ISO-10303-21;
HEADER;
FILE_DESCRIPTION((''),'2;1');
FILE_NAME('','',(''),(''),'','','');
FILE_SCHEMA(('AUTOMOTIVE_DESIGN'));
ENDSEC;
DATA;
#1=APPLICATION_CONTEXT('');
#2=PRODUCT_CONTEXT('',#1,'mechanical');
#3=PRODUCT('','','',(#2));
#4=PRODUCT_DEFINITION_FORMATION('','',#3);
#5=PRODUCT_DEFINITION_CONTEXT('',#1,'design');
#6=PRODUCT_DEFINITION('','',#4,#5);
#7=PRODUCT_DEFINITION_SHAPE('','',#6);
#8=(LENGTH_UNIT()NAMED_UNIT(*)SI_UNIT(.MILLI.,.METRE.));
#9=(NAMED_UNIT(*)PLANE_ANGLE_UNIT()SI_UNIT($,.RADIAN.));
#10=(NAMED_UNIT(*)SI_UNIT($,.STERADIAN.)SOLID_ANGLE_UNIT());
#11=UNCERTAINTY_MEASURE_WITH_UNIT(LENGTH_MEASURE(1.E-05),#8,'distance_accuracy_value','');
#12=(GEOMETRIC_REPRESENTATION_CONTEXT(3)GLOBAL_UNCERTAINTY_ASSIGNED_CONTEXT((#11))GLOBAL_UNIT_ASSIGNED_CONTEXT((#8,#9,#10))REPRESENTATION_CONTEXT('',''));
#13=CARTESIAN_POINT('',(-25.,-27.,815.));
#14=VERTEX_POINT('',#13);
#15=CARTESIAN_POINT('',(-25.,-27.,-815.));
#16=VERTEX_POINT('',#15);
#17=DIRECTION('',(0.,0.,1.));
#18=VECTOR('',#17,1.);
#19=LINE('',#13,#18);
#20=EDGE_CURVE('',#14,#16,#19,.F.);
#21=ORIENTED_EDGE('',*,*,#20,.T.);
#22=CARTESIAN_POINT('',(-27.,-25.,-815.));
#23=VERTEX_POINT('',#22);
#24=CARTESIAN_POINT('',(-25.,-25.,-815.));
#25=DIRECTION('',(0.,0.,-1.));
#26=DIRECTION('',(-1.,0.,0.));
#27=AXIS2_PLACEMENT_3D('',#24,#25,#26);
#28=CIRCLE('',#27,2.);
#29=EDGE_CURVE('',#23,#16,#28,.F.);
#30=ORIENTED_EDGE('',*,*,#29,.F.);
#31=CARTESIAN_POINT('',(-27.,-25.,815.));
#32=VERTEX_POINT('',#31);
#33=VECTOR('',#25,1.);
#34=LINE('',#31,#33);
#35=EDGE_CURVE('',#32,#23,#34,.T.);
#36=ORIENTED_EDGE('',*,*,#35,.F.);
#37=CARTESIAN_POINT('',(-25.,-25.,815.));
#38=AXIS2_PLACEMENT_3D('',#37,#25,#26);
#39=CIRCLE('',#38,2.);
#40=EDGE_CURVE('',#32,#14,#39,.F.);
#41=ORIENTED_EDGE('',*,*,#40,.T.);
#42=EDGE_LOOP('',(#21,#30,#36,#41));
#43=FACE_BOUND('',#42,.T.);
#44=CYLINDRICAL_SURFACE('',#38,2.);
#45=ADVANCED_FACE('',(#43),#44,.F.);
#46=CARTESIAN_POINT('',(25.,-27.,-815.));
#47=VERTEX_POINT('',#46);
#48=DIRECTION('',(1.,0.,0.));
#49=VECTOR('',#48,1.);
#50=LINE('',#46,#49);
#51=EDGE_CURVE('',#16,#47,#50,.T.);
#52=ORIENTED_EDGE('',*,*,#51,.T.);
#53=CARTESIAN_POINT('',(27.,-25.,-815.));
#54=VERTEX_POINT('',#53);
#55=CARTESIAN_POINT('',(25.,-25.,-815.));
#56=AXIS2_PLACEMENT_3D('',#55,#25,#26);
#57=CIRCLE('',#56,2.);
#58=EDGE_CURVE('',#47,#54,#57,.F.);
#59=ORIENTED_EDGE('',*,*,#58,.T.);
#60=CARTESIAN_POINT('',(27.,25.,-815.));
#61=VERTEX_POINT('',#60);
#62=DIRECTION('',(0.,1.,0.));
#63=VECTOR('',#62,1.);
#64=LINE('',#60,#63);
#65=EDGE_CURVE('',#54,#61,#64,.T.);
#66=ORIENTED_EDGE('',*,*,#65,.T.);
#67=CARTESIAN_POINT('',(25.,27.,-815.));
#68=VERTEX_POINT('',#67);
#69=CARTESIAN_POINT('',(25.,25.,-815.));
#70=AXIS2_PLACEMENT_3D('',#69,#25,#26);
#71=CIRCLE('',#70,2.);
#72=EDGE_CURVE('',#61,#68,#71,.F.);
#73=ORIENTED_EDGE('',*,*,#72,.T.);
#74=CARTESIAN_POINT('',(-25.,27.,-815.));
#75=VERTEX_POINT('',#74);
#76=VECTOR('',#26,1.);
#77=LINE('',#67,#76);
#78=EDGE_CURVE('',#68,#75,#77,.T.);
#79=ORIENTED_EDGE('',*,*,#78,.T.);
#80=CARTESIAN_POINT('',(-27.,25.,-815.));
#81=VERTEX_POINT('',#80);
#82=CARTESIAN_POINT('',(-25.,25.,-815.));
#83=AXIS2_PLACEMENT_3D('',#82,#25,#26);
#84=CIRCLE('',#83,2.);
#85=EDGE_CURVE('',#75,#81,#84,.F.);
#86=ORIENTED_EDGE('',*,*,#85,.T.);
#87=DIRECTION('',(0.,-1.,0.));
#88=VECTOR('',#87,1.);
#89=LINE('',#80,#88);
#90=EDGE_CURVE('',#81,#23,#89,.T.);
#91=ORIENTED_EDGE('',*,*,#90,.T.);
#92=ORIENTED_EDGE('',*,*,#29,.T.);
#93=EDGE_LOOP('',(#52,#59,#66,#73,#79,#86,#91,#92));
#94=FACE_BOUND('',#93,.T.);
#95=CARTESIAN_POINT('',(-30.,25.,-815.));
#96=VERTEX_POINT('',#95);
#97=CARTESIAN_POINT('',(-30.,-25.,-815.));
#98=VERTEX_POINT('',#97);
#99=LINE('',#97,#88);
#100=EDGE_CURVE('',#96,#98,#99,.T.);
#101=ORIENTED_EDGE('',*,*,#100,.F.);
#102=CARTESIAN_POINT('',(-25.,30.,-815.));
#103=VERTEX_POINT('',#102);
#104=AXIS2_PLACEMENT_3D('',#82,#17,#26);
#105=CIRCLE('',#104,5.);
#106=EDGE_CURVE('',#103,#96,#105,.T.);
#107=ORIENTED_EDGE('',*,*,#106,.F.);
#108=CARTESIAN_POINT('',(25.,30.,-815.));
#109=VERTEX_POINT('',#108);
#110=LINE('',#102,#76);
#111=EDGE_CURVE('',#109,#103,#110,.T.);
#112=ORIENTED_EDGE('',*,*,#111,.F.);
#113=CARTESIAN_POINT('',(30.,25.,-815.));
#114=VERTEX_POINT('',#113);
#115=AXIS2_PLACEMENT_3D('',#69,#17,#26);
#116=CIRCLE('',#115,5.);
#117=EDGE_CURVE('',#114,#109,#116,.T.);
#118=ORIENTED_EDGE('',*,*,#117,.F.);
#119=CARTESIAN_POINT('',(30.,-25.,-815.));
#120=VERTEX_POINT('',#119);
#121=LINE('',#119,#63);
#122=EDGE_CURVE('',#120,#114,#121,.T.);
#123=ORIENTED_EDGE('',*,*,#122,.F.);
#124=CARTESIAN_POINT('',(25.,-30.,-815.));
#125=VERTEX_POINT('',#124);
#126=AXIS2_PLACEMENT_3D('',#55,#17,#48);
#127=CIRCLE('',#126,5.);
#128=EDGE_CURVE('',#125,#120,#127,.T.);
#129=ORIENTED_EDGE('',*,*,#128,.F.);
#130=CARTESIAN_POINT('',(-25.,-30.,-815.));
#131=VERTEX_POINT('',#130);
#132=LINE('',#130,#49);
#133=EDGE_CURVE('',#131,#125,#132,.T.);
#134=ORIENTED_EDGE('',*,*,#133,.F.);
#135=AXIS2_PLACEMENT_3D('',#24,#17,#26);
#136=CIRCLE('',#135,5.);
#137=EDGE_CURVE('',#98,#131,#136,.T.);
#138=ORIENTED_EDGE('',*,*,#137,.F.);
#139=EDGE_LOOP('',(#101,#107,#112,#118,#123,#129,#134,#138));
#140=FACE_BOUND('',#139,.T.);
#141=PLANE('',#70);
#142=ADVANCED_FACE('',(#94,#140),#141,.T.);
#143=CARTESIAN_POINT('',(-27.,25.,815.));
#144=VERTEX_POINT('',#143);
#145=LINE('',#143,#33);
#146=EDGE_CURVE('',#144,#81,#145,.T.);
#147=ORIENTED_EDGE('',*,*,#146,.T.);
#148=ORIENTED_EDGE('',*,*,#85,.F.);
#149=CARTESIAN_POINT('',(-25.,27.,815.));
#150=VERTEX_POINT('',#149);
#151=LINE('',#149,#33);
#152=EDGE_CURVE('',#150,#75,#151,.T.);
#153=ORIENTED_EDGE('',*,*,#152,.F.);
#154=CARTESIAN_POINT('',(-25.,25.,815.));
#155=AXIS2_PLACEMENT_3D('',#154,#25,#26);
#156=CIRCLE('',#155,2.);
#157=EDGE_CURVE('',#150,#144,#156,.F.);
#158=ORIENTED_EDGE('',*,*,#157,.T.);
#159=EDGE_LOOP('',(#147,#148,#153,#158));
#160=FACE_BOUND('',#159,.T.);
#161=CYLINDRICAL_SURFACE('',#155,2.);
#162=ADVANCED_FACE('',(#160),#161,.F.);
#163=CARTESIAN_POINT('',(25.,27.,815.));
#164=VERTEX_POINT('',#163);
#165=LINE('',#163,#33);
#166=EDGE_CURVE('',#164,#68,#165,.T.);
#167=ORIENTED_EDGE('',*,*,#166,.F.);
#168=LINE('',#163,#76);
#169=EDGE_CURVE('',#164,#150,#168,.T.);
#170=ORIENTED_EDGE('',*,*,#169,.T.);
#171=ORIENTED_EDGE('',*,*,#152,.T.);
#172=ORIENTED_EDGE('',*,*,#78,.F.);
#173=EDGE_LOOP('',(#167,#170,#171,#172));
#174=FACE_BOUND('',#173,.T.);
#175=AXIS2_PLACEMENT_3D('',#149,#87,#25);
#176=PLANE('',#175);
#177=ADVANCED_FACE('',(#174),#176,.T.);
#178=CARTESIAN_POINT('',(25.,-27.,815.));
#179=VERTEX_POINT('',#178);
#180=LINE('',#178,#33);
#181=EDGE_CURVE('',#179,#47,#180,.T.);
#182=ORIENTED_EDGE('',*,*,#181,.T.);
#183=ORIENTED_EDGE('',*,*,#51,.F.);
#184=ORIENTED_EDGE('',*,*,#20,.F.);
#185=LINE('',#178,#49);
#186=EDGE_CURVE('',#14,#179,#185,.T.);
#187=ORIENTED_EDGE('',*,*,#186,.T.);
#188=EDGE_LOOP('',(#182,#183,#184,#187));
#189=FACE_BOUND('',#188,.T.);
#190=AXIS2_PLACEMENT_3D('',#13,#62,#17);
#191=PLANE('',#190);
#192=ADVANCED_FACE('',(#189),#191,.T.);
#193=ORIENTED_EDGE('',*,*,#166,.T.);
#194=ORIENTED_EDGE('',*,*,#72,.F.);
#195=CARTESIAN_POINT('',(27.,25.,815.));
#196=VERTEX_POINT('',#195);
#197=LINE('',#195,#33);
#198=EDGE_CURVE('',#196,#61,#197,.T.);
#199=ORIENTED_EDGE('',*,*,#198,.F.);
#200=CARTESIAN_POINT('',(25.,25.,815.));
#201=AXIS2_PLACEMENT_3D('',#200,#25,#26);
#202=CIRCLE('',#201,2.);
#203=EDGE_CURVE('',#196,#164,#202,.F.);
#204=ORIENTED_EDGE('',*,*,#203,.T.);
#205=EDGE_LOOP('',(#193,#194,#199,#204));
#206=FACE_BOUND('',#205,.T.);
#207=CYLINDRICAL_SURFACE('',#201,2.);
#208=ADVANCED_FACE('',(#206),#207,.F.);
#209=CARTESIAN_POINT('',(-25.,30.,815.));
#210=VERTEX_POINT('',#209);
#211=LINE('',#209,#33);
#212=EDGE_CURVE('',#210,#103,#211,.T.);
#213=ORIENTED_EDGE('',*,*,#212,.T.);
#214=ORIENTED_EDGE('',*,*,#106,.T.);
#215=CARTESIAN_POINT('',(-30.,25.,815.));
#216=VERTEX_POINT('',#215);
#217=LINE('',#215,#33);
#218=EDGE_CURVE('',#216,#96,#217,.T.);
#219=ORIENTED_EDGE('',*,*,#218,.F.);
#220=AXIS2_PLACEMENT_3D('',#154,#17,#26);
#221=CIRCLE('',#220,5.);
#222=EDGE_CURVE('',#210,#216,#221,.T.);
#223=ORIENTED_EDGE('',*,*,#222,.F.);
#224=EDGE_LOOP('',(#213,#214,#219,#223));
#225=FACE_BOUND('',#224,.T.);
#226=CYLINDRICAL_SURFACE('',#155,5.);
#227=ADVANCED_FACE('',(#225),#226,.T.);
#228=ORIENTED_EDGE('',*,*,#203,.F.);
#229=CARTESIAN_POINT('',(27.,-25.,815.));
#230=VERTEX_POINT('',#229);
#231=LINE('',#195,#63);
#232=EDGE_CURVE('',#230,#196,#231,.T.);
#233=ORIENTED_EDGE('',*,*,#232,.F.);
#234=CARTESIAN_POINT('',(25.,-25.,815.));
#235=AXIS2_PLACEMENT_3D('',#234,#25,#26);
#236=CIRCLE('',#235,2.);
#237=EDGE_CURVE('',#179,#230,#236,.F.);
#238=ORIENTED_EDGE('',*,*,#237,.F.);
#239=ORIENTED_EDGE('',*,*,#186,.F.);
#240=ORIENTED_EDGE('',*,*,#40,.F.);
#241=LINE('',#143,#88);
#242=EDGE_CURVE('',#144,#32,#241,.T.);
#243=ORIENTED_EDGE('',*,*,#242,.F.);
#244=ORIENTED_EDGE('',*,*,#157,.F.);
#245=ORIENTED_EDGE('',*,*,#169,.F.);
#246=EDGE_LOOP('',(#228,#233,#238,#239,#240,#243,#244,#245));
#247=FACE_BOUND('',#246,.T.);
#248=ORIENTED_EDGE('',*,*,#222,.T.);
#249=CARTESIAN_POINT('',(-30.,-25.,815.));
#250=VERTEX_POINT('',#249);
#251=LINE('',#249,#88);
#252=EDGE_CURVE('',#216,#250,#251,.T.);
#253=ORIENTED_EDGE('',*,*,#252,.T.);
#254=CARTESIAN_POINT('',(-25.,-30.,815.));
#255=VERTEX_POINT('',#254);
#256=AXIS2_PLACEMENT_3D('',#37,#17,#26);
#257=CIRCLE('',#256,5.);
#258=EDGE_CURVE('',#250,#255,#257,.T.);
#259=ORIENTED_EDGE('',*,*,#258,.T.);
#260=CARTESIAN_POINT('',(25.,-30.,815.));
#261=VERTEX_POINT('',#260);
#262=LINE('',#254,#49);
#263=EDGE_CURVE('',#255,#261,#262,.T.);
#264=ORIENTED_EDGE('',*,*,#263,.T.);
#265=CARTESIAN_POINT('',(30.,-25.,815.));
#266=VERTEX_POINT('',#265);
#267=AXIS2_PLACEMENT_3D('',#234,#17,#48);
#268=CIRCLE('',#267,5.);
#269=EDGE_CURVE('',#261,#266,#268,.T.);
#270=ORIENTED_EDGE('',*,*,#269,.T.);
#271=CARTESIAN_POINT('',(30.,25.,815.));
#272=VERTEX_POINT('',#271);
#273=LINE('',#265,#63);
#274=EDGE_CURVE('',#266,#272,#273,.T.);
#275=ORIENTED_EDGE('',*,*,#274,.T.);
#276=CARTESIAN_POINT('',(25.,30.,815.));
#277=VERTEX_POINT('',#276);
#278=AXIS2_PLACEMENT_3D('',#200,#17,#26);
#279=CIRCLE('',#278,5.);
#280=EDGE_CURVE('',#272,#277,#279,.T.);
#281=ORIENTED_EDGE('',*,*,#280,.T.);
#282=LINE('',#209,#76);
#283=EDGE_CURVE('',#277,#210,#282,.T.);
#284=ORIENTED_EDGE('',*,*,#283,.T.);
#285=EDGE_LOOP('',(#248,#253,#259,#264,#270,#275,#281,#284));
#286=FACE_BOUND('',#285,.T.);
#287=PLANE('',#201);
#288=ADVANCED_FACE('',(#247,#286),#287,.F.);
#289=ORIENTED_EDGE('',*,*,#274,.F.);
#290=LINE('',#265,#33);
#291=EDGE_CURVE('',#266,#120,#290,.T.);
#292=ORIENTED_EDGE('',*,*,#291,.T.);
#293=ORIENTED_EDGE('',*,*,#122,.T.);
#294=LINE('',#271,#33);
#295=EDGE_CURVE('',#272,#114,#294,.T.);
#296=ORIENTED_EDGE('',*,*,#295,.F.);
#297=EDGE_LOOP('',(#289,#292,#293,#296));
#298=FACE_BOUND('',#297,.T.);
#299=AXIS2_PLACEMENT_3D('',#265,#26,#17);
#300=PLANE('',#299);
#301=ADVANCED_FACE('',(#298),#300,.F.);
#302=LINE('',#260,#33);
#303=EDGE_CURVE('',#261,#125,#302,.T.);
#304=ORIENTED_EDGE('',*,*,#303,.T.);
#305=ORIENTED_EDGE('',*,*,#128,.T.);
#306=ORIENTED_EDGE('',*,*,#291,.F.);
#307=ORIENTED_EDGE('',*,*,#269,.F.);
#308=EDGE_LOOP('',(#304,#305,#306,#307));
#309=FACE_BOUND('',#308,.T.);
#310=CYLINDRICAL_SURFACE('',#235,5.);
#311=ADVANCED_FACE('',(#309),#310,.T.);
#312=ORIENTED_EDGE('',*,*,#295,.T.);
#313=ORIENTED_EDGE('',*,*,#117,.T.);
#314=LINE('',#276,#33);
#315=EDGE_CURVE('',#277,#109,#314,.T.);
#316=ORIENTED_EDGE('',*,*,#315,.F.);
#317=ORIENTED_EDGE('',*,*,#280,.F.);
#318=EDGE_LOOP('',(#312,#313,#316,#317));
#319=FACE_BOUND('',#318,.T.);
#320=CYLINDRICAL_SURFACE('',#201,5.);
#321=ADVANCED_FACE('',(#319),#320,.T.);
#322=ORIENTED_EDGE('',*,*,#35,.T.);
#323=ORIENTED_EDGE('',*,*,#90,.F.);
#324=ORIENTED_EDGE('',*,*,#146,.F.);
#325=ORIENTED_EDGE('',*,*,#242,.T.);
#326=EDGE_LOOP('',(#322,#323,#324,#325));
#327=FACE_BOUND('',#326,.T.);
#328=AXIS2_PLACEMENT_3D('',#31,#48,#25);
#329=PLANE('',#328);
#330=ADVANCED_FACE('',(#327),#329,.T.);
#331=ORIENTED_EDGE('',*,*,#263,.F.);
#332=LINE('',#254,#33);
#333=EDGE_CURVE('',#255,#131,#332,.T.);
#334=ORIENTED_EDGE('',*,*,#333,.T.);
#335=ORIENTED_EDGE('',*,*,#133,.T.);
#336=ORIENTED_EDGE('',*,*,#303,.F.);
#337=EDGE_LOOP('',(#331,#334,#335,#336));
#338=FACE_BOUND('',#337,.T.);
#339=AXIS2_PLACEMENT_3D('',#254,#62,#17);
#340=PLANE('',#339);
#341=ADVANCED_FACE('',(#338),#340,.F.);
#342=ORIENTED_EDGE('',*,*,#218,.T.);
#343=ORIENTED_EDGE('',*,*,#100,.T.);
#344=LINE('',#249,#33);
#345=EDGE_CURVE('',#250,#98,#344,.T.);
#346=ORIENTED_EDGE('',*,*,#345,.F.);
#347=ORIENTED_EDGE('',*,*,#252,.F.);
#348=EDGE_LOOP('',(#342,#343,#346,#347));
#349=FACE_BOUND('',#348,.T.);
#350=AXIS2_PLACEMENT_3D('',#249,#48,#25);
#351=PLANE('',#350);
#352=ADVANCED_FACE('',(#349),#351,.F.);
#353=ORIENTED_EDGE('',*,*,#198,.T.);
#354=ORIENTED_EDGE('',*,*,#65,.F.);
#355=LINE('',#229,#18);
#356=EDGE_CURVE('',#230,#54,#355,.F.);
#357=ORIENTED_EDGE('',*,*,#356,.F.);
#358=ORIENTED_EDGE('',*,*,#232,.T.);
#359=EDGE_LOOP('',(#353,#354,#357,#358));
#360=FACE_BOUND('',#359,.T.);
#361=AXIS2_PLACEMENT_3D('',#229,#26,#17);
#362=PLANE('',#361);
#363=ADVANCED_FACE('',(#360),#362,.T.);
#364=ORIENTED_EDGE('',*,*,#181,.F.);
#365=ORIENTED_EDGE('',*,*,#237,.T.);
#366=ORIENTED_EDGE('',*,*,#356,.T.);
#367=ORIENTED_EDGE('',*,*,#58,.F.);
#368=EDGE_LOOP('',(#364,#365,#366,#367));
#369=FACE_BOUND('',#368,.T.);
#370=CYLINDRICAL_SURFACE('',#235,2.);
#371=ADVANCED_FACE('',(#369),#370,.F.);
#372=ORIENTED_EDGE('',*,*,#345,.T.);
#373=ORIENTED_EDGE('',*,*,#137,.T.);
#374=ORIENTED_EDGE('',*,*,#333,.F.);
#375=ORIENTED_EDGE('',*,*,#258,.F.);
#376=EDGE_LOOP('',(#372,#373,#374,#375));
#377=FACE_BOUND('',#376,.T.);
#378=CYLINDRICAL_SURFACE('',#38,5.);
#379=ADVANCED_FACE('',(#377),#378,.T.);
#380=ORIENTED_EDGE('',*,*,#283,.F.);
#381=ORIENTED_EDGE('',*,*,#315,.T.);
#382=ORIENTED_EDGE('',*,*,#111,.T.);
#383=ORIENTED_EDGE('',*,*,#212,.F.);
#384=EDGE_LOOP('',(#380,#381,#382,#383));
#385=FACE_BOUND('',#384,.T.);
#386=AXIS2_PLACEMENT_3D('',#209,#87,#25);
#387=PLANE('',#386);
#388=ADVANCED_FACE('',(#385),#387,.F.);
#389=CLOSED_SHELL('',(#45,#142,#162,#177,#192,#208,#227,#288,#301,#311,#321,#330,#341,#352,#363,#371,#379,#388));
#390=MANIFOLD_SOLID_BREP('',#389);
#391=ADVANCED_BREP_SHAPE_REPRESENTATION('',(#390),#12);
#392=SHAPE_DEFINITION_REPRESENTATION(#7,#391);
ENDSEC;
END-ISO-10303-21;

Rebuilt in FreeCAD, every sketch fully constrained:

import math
import FreeCAD as App
import Part
import Sketcher

V = App.Vector


def faces_at(feature, points):
    """Names of the faces that lie closest to the given points."""
    faces = feature.Shape.Faces
    near = lambda p: min(range(len(faces)), key=lambda i: faces[i].distToShape(Part.Vertex(*p))[0])
    return sorted({f"Face{near(p) + 1}" for p in points})

doc = App.newDocument("Part")
body = doc.addObject("PartDesign::Body", "Body")

sketch1 = body.newObject("Sketcher::SketchObject", "Sketch")
sketch1.AttachmentSupport = (doc.getObject("XY_Plane"), [""])
sketch1.MapMode = "FlatFace"
sketch1.addGeometry([
    Part.LineSegment(V(-25, -30, 0), V(25, -30, 0)),
    Part.ArcOfCircle(Part.Circle(V(25, -25, 0), V(0, 0, 1), 5), math.radians(-90), math.radians(0)),
    Part.LineSegment(V(30, -25, 0), V(30, 25, 0)),
    Part.ArcOfCircle(Part.Circle(V(25, 25, 0), V(0, 0, 1), 5), math.radians(0), math.radians(90)),
    Part.LineSegment(V(25, 30, 0), V(-25, 30, 0)),
    Part.ArcOfCircle(Part.Circle(V(-25, 25, 0), V(0, 0, 1), 5), math.radians(90), math.radians(180)),
    Part.LineSegment(V(-30, 25, 0), V(-30, -25, 0)),
    Part.ArcOfCircle(Part.Circle(V(-25, -25, 0), V(0, 0, 1), 5), math.radians(180), math.radians(270)),
], False)
sketch1.addConstraint([
    Sketcher.Constraint("Tangent", 0, 2, 1, 1),
    Sketcher.Constraint("Tangent", 1, 2, 2, 1),
    Sketcher.Constraint("Tangent", 2, 2, 3, 1),
    Sketcher.Constraint("Tangent", 3, 2, 4, 1),
    Sketcher.Constraint("Tangent", 4, 2, 5, 1),
    Sketcher.Constraint("Tangent", 5, 2, 6, 1),
    Sketcher.Constraint("Tangent", 6, 2, 7, 1),
    Sketcher.Constraint("Tangent", 7, 2, 0, 1),
    Sketcher.Constraint("Horizontal", 0),
    Sketcher.Constraint("Vertical", 2),
    Sketcher.Constraint("Horizontal", 4),
    Sketcher.Constraint("Vertical", 6),
    Sketcher.Constraint("Equal", 1, 3),
    Sketcher.Constraint("Equal", 3, 5),
    Sketcher.Constraint("Equal", 5, 7),
    Sketcher.Constraint("Symmetric", 1, 3, 5, 3, -1, 1),
    Sketcher.Constraint("Equal", 4, 2),
    Sketcher.Constraint("Radius", 1, 5.0),
    Sketcher.Constraint("DistanceX", 0, 1, 0, 2, 50.0),
])
pad1 = body.newObject("PartDesign::Pad", "Pad")
pad1.Profile = sketch1
pad1.Length = 1630
pad1.Midplane = True
doc.recompute()

thickness = body.newObject("PartDesign::Thickness", "Thickness")
thickness.Base = (pad1, faces_at(pad1, [(0, 0, 815), (0, 0, -815)]))
thickness.Value = 3
thickness.Reversed = True
thickness.Join = "Intersection"

doc.recompute()
